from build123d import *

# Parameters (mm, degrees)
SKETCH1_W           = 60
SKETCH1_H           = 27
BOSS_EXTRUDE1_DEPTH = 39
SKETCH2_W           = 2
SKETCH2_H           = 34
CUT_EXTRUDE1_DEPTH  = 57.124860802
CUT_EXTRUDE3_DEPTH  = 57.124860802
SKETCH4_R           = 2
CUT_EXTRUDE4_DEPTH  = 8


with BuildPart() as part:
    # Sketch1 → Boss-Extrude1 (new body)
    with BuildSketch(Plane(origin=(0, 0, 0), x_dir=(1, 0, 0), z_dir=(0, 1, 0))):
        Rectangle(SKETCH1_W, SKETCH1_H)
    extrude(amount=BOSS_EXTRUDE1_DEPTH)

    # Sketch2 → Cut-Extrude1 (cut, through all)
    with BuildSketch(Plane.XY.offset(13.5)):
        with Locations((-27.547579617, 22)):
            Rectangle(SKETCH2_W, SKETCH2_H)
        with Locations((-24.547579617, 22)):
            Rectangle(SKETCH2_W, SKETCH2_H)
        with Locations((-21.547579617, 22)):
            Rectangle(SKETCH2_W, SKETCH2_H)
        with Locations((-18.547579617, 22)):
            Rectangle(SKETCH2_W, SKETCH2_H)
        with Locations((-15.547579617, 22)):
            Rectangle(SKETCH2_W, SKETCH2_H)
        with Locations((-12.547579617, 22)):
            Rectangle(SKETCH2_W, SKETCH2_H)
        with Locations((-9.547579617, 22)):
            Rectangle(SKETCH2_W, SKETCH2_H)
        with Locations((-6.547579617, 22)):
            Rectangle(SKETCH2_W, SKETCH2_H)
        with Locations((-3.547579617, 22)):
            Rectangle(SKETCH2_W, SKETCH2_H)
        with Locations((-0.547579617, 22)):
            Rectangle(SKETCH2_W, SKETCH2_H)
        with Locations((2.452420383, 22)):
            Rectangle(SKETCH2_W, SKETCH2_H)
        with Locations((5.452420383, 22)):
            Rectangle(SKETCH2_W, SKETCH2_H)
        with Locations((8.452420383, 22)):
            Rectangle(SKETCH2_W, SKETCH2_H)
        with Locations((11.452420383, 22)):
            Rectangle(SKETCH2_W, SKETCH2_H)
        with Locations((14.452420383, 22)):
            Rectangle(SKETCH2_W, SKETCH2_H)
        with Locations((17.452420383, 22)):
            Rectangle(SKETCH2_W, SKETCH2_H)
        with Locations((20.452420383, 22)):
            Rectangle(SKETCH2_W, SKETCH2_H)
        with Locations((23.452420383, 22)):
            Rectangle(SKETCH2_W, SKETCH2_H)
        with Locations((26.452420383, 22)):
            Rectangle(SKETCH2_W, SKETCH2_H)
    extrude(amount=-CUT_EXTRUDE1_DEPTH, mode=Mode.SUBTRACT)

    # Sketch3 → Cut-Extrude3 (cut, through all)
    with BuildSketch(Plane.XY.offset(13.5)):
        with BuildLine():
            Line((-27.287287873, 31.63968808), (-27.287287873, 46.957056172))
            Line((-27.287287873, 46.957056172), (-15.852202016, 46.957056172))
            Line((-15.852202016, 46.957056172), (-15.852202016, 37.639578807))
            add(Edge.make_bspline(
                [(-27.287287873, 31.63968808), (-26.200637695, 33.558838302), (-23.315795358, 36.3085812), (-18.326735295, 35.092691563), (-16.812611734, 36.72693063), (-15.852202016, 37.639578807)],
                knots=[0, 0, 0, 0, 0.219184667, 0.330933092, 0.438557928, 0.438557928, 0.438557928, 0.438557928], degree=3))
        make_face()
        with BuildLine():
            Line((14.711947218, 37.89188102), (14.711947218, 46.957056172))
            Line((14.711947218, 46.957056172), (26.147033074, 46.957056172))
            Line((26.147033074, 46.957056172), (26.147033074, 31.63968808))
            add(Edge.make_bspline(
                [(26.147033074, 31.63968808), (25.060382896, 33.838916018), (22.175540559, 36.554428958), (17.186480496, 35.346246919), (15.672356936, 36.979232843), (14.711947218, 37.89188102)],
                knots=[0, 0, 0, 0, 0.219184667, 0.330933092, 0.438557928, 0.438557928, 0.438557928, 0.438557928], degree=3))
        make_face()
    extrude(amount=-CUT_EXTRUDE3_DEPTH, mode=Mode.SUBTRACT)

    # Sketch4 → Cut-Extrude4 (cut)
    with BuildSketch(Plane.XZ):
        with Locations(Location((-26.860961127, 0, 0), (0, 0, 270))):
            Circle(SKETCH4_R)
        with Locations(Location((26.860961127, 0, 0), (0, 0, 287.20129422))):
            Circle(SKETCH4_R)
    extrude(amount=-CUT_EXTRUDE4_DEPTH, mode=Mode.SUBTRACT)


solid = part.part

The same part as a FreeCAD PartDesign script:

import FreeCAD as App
import Part
import Sketcher
Q = App.Units.Quantity

doc = App.newDocument("Part")
body = doc.addObject("PartDesign::Body", "Body")

sketch1 = body.newObject("Sketcher::SketchObject", "Sketch")
sketch1.AttachmentSupport = (doc.getObject("XZ_Plane"), [""])
sketch1.MapMode = "FlatFace"
sketch1.addGeometry([
    Part.LineSegment(App.Vector(-30, -14, 0), App.Vector(-30, 14, 0)),
    Part.LineSegment(App.Vector(-30, 14, 0), App.Vector(30, 14, 0)),
    Part.LineSegment(App.Vector(30, 14, 0), App.Vector(30, -14, 0)),
    Part.LineSegment(App.Vector(30, -14, 0), App.Vector(-30, -14, 0)),
], False)
sketch1.addConstraint([
    Sketcher.Constraint("Coincident", 0, 2, 1, 1),
    Sketcher.Constraint("Coincident", 1, 2, 2, 1),
    Sketcher.Constraint("Coincident", 2, 2, 3, 1),
    Sketcher.Constraint("Coincident", 3, 2, 0, 1),
    Sketcher.Constraint("Vertical", 0),
    Sketcher.Constraint("Horizontal", 1),
    Sketcher.Constraint("Vertical", 2),
    Sketcher.Constraint("Horizontal", 3),
    Sketcher.Constraint("Symmetric", 0, 2, 2, 2, -1, 1),
    Sketcher.Constraint("DistanceX", 1, 1, 1, 2, Q("60 mm")),
    Sketcher.Constraint("DistanceY", 0, 1, 0, 2, Q("27 mm")),
])
pad1 = body.newObject("PartDesign::Pad", "Pad")
pad1.Profile = sketch1
pad1.Length = 39
pad1.Reversed = True

sketch2 = body.newObject("Sketcher::SketchObject", "Sketch001")
sketch2.AttachmentSupport = (doc.getObject("XY_Plane"), [""])
sketch2.MapMode = "FlatFace"
sketch2.AttachmentOffset = App.Placement(App.Vector(0, 0, 13.5), App.Rotation())
sketch2.addGeometry([
    Part.LineSegment(App.Vector(-28.5, 39, 0), App.Vector(-28.5, 5, 0)),
    Part.LineSegment(App.Vector(-28.5, 5, 0), App.Vector(-26.5, 5, 0)),
    Part.LineSegment(App.Vector(-26.5, 5, 0), App.Vector(-26.5, 39, 0)),
    Part.LineSegment(App.Vector(-26.5, 39, 0), App.Vector(-28.5, 39, 0)),
    Part.LineSegment(App.Vector(-25.5, 39, 0), App.Vector(-25.5, 5, 0)),
    Part.LineSegment(App.Vector(-25.5, 5, 0), App.Vector(-23.5, 5, 0)),
    Part.LineSegment(App.Vector(-23.5, 5, 0), App.Vector(-23.5, 39, 0)),
    Part.LineSegment(App.Vector(-23.5, 39, 0), App.Vector(-25.5, 39, 0)),
    Part.LineSegment(App.Vector(-22.5, 39, 0), App.Vector(-22.5, 5, 0)),
    Part.LineSegment(App.Vector(-22.5, 5, 0), App.Vector(-20.5, 5, 0)),
    Part.LineSegment(App.Vector(-20.5, 5, 0), App.Vector(-20.5, 39, 0)),
    Part.LineSegment(App.Vector(-20.5, 39, 0), App.Vector(-22.5, 39, 0)),
    Part.LineSegment(App.Vector(-19.5, 39, 0), App.Vector(-19.5, 5, 0)),
    Part.LineSegment(App.Vector(-19.5, 5, 0), App.Vector(-17.5, 5, 0)),
    Part.LineSegment(App.Vector(-17.5, 5, 0), App.Vector(-17.5, 39, 0)),
    Part.LineSegment(App.Vector(-17.5, 39, 0), App.Vector(-19.5, 39, 0)),
    Part.LineSegment(App.Vector(-16.5, 39, 0), App.Vector(-16.5, 5, 0)),
    Part.LineSegment(App.Vector(-16.5, 5, 0), App.Vector(-14.5, 5, 0)),
    Part.LineSegment(App.Vector(-14.5, 5, 0), App.Vector(-14.5, 39, 0)),
    Part.LineSegment(App.Vector(-14.5, 39, 0), App.Vector(-16.5, 39, 0)),
    Part.LineSegment(App.Vector(-13.5, 39, 0), App.Vector(-13.5, 5, 0)),
    Part.LineSegment(App.Vector(-13.5, 5, 0), App.Vector(-11.5, 5, 0)),
    Part.LineSegment(App.Vector(-11.5, 5, 0), App.Vector(-11.5, 39, 0)),
    Part.LineSegment(App.Vector(-11.5, 39, 0), App.Vector(-13.5, 39, 0)),
    Part.LineSegment(App.Vector(-10.5, 39, 0), App.Vector(-10.5, 5, 0)),
    Part.LineSegment(App.Vector(-10.5, 5, 0), App.Vector(-8.5, 5, 0)),
    Part.LineSegment(App.Vector(-8.5, 5, 0), App.Vector(-8.5, 39, 0)),
    Part.LineSegment(App.Vector(-8.5, 39, 0), App.Vector(-10.5, 39, 0)),
    Part.LineSegment(App.Vector(-7.5, 39, 0), App.Vector(-7.5, 5, 0)),
    Part.LineSegment(App.Vector(-7.5, 5, 0), App.Vector(-5.5, 5, 0)),
    Part.LineSegment(App.Vector(-5.5, 5, 0), App.Vector(-5.5, 39, 0)),
    Part.LineSegment(App.Vector(-5.5, 39, 0), App.Vector(-7.5, 39, 0)),
    Part.LineSegment(App.Vector(-4.5, 39, 0), App.Vector(-4.5, 5, 0)),
    Part.LineSegment(App.Vector(-4.5, 5, 0), App.Vector(-2.5, 5, 0)),
    Part.LineSegment(App.Vector(-2.5, 5, 0), App.Vector(-2.5, 39, 0)),
    Part.LineSegment(App.Vector(-2.5, 39, 0), App.Vector(-4.5, 39, 0)),
    Part.LineSegment(App.Vector(-1.5, 39, 0), App.Vector(-1.5, 5, 0)),
    Part.LineSegment(App.Vector(-1.5, 5, 0), App.Vector(0.5, 5, 0)),
    Part.LineSegment(App.Vector(0.5, 5, 0), App.Vector(0.5, 39, 0)),
    Part.LineSegment(App.Vector(0.5, 39, 0), App.Vector(-1.5, 39, 0)),
    Part.LineSegment(App.Vector(1.5, 39, 0), App.Vector(1.5, 5, 0)),
    Part.LineSegment(App.Vector(1.5, 5, 0), App.Vector(3.5, 5, 0)),
    Part.LineSegment(App.Vector(3.5, 5, 0), App.Vector(3.5, 39, 0)),
    Part.LineSegment(App.Vector(3.5, 39, 0), App.Vector(1.5, 39, 0)),
    Part.LineSegment(App.Vector(4.5, 39, 0), App.Vector(4.5, 5, 0)),
    Part.LineSegment(App.Vector(4.5, 5, 0), App.Vector(6.5, 5, 0)),
    Part.LineSegment(App.Vector(6.5, 5, 0), App.Vector(6.5, 39, 0)),
    Part.LineSegment(App.Vector(6.5, 39, 0), App.Vector(4.5, 39, 0)),
    Part.LineSegment(App.Vector(7.5, 39, 0), App.Vector(7.5, 5, 0)),
    Part.LineSegment(App.Vector(7.5, 5, 0), App.Vector(9.5, 5, 0)),
    Part.LineSegment(App.Vector(9.5, 5, 0), App.Vector(9.5, 39, 0)),
    Part.LineSegment(App.Vector(9.5, 39, 0), App.Vector(7.5, 39, 0)),
    Part.LineSegment(App.Vector(10.5, 39, 0), App.Vector(10.5, 5, 0)),
    Part.LineSegment(App.Vector(10.5, 5, 0), App.Vector(12.5, 5, 0)),
    Part.LineSegment(App.Vector(12.5, 5, 0), App.Vector(12.5, 39, 0)),
    Part.LineSegment(App.Vector(12.5, 39, 0), App.Vector(10.5, 39, 0)),
    Part.LineSegment(App.Vector(13.5, 39, 0), App.Vector(13.5, 5, 0)),
    Part.LineSegment(App.Vector(13.5, 5, 0), App.Vector(15.5, 5, 0)),
    Part.LineSegment(App.Vector(15.5, 5, 0), App.Vector(15.5, 39, 0)),
    Part.LineSegment(App.Vector(15.5, 39, 0), App.Vector(13.5, 39, 0)),
    Part.LineSegment(App.Vector(16.5, 39, 0), App.Vector(16.5, 5, 0)),
    Part.LineSegment(App.Vector(16.5, 5, 0), App.Vector(18.5, 5, 0)),
    Part.LineSegment(App.Vector(18.5, 5, 0), App.Vector(18.5, 39, 0)),
    Part.LineSegment(App.Vector(18.5, 39, 0), App.Vector(16.5, 39, 0)),
    Part.LineSegment(App.Vector(19.5, 39, 0), App.Vector(19.5, 5, 0)),
    Part.LineSegment(App.Vector(19.5, 5, 0), App.Vector(21.5, 5, 0)),
    Part.LineSegment(App.Vector(21.5, 5, 0), App.Vector(21.5, 39, 0)),
    Part.LineSegment(App.Vector(21.5, 39, 0), App.Vector(19.5, 39, 0)),
    Part.LineSegment(App.Vector(22.5, 39, 0), App.Vector(22.5, 5, 0)),
    Part.LineSegment(App.Vector(22.5, 5, 0), App.Vector(24.5, 5, 0)),
    Part.LineSegment(App.Vector(24.5, 5, 0), App.Vector(24.5, 39, 0)),
    Part.LineSegment(App.Vector(24.5, 39, 0), App.Vector(22.5, 39, 0)),
    Part.LineSegment(App.Vector(25.5, 39, 0), App.Vector(25.5, 5, 0)),
    Part.LineSegment(App.Vector(25.5, 5, 0), App.Vector(27.5, 5, 0)),
    Part.LineSegment(App.Vector(27.5, 5, 0), App.Vector(27.5, 39, 0)),
    Part.LineSegment(App.Vector(27.5, 39, 0), App.Vector(25.5, 39, 0)),
], False)
sketch2.addConstraint([
    Sketcher.Constraint("Coincident", 0, 2, 1, 1),
    Sketcher.Constraint("Coincident", 1, 2, 2, 1),
    Sketcher.Constraint("Coincident", 2, 2, 3, 1),
    Sketcher.Constraint("Coincident", 3, 2, 0, 1),
    Sketcher.Constraint("Coincident", 4, 2, 5, 1),
    Sketcher.Constraint("Coincident", 5, 2, 6, 1),
    Sketcher.Constraint("Coincident", 6, 2, 7, 1),
    Sketcher.Constraint("Coincident", 7, 2, 4, 1),
    Sketcher.Constraint("Coincident", 8, 2, 9, 1),
    Sketcher.Constraint("Coincident", 9, 2, 10, 1),
    Sketcher.Constraint("Coincident", 10, 2, 11, 1),
    Sketcher.Constraint("Coincident", 11, 2, 8, 1),
    Sketcher.Constraint("Coincident", 12, 2, 13, 1),
    Sketcher.Constraint("Coincident", 13, 2, 14, 1),
    Sketcher.Constraint("Coincident", 14, 2, 15, 1),
    Sketcher.Constraint("Coincident", 15, 2, 12, 1),
    Sketcher.Constraint("Coincident", 16, 2, 17, 1),
    Sketcher.Constraint("Coincident", 17, 2, 18, 1),
    Sketcher.Constraint("Coincident", 18, 2, 19, 1),
    Sketcher.Constraint("Coincident", 19, 2, 16, 1),
    Sketcher.Constraint("Coincident", 20, 2, 21, 1),
    Sketcher.Constraint("Coincident", 21, 2, 22, 1),
    Sketcher.Constraint("Coincident", 22, 2, 23, 1),
    Sketcher.Constraint("Coincident", 23, 2, 20, 1),
    Sketcher.Constraint("Coincident", 24, 2, 25, 1),
    Sketcher.Constraint("Coincident", 25, 2, 26, 1),
    Sketcher.Constraint("Coincident", 26, 2, 27, 1),
    Sketcher.Constraint("Coincident", 27, 2, 24, 1),
    Sketcher.Constraint("Coincident", 28, 2, 29, 1),
    Sketcher.Constraint("Coincident", 29, 2, 30, 1),
    Sketcher.Constraint("Coincident", 30, 2, 31, 1),
    Sketcher.Constraint("Coincident", 31, 2, 28, 1),
    Sketcher.Constraint("Coincident", 32, 2, 33, 1),
    Sketcher.Constraint("Coincident", 33, 2, 34, 1),
    Sketcher.Constraint("Coincident", 34, 2, 35, 1),
    Sketcher.Constraint("Coincident", 35, 2, 32, 1),
    Sketcher.Constraint("Coincident", 36, 2, 37, 1),
    Sketcher.Constraint("Coincident", 37, 2, 38, 1),
    Sketcher.Constraint("Coincident", 38, 2, 39, 1),
    Sketcher.Constraint("Coincident", 39, 2, 36, 1),
    Sketcher.Constraint("Coincident", 40, 2, 41, 1),
    Sketcher.Constraint("Coincident", 41, 2, 42, 1),
    Sketcher.Constraint("Coincident", 42, 2, 43, 1),
    Sketcher.Constraint("Coincident", 43, 2, 40, 1),
    Sketcher.Constraint("Coincident", 44, 2, 45, 1),
    Sketcher.Constraint("Coincident", 45, 2, 46, 1),
    Sketcher.Constraint("Coincident", 46, 2, 47, 1),
    Sketcher.Constraint("Coincident", 47, 2, 44, 1),
    Sketcher.Constraint("Coincident", 48, 2, 49, 1),
    Sketcher.Constraint("Coincident", 49, 2, 50, 1),
    Sketcher.Constraint("Coincident", 50, 2, 51, 1),
    Sketcher.Constraint("Coincident", 51, 2, 48, 1),
    Sketcher.Constraint("Coincident", 52, 2, 53, 1),
    Sketcher.Constraint("Coincident", 53, 2, 54, 1),
    Sketcher.Constraint("Coincident", 54, 2, 55, 1),
    Sketcher.Constraint("Coincident", 55, 2, 52, 1),
    Sketcher.Constraint("Coincident", 56, 2, 57, 1),
    Sketcher.Constraint("Coincident", 57, 2, 58, 1),
    Sketcher.Constraint("Coincident", 58, 2, 59, 1),
    Sketcher.Constraint("Coincident", 59, 2, 56, 1),
    Sketcher.Constraint("Coincident", 60, 2, 61, 1),
    Sketcher.Constraint("Coincident", 61, 2, 62, 1),
    Sketcher.Constraint("Coincident", 62, 2, 63, 1),
    Sketcher.Constraint("Coincident", 63, 2, 60, 1),
    Sketcher.Constraint("Coincident", 64, 2, 65, 1),
    Sketcher.Constraint("Coincident", 65, 2, 66, 1),
    Sketcher.Constraint("Coincident", 66, 2, 67, 1),
    Sketcher.Constraint("Coincident", 67, 2, 64, 1),
    Sketcher.Constraint("Coincident", 68, 2, 69, 1),
    Sketcher.Constraint("Coincident", 69, 2, 70, 1),
    Sketcher.Constraint("Coincident", 70, 2, 71, 1),
    Sketcher.Constraint("Coincident", 71, 2, 68, 1),
    Sketcher.Constraint("Coincident", 72, 2, 73, 1),
    Sketcher.Constraint("Coincident", 73, 2, 74, 1),
    Sketcher.Constraint("Coincident", 74, 2, 75, 1),
    Sketcher.Constraint("Coincident", 75, 2, 72, 1),
    Sketcher.Constraint("Vertical", 0),
    Sketcher.Constraint("Horizontal", 1),
    Sketcher.Constraint("Vertical", 2),
    Sketcher.Constraint("Horizontal", 3),
    Sketcher.Constraint("Vertical", 4),
    Sketcher.Constraint("Horizontal", 5),
    Sketcher.Constraint("Vertical", 6),
    Sketcher.Constraint("Horizontal", 7),
    Sketcher.Constraint("Vertical", 8),
    Sketcher.Constraint("Horizontal", 9),
    Sketcher.Constraint("Vertical", 10),
    Sketcher.Constraint("Horizontal", 11),
    Sketcher.Constraint("Vertical", 12),
    Sketcher.Constraint("Horizontal", 13),
    Sketcher.Constraint("Vertical", 14),
    Sketcher.Constraint("Horizontal", 15),
    Sketcher.Constraint("Vertical", 16),
    Sketcher.Constraint("Horizontal", 17),
    Sketcher.Constraint("Vertical", 18),
    Sketcher.Constraint("Horizontal", 19),
    Sketcher.Constraint("Vertical", 20),
    Sketcher.Constraint("Horizontal", 21),
    Sketcher.Constraint("Vertical", 22),
    Sketcher.Constraint("Horizontal", 23),
    Sketcher.Constraint("Vertical", 24),
    Sketcher.Constraint("Horizontal", 25),
    Sketcher.Constraint("Vertical", 26),
    Sketcher.Constraint("Horizontal", 27),
    Sketcher.Constraint("Vertical", 28),
    Sketcher.Constraint("Horizontal", 29),
    Sketcher.Constraint("Vertical", 30),
    Sketcher.Constraint("Horizontal", 31),
    Sketcher.Constraint("Vertical", 32),
    Sketcher.Constraint("Horizontal", 33),
    Sketcher.Constraint("Vertical", 34),
    Sketcher.Constraint("Horizontal", 35),
    Sketcher.Constraint("Vertical", 36),
    Sketcher.Constraint("Horizontal", 37),
    Sketcher.Constraint("Vertical", 38),
    Sketcher.Constraint("Horizontal", 39),
    Sketcher.Constraint("Vertical", 40),
    Sketcher.Constraint("Horizontal", 41),
    Sketcher.Constraint("Vertical", 42),
    Sketcher.Constraint("Horizontal", 43),
    Sketcher.Constraint("Vertical", 44),
    Sketcher.Constraint("Horizontal", 45),
    Sketcher.Constraint("Vertical", 46),
    Sketcher.Constraint("Horizontal", 47),
    Sketcher.Constraint("Vertical", 48),
    Sketcher.Constraint("Horizontal", 49),
    Sketcher.Constraint("Vertical", 50),
    Sketcher.Constraint("Horizontal", 51),
    Sketcher.Constraint("Vertical", 52),
    Sketcher.Constraint("Horizontal", 53),
    Sketcher.Constraint("Vertical", 54),
    Sketcher.Constraint("Horizontal", 55),
    Sketcher.Constraint("Vertical", 56),
    Sketcher.Constraint("Horizontal", 57),
    Sketcher.Constraint("Vertical", 58),
    Sketcher.Constraint("Horizontal", 59),
    Sketcher.Constraint("Vertical", 60),
    Sketcher.Constraint("Horizontal", 61),
    Sketcher.Constraint("Vertical", 62),
    Sketcher.Constraint("Horizontal", 63),
    Sketcher.Constraint("Vertical", 64),
    Sketcher.Constraint("Horizontal", 65),
    Sketcher.Constraint("Vertical", 66),
    Sketcher.Constraint("Horizontal", 67),
    Sketcher.Constraint("Vertical", 68),
    Sketcher.Constraint("Horizontal", 69),
    Sketcher.Constraint("Vertical", 70),
    Sketcher.Constraint("Horizontal", 71),
    Sketcher.Constraint("Vertical", 72),
    Sketcher.Constraint("Horizontal", 73),
    Sketcher.Constraint("Vertical", 74),
    Sketcher.Constraint("Horizontal", 75),
    Sketcher.Constraint("Horizontal", 1, 2, 4, 2),
    Sketcher.Constraint("Horizontal", 3, 2, 6, 2),
    Sketcher.Constraint("Horizontal", 5, 2, 8, 2),
    Sketcher.Constraint("Horizontal", 7, 2, 10, 2),
    Sketcher.Constraint("Horizontal", 9, 2, 12, 2),
    Sketcher.Constraint("Horizontal", 11, 2, 14, 2),
    Sketcher.Constraint("Horizontal", 13, 2, 16, 2),
    Sketcher.Constraint("Horizontal", 15, 2, 18, 2),
    Sketcher.Constraint("Horizontal", 17, 2, 20, 2),
    Sketcher.Constraint("Horizontal", 19, 2, 22, 2),
    Sketcher.Constraint("Horizontal", 21, 2, 24, 2),
    Sketcher.Constraint("Horizontal", 23, 2, 26, 2),
    Sketcher.Constraint("Horizontal", 25, 2, 28, 2),
    Sketcher.Constraint("Horizontal", 27, 2, 30, 2),
    Sketcher.Constraint("Horizontal", 29, 2, 32, 2),
    Sketcher.Constraint("Horizontal", 31, 2, 34, 2),
    Sketcher.Constraint("Horizontal", 33, 2, 36, 2),
    Sketcher.Constraint("Horizontal", 35, 2, 38, 2),
    Sketcher.Constraint("Horizontal", 37, 2, 40, 2),
    Sketcher.Constraint("Horizontal", 39, 2, 42, 2),
    Sketcher.Constraint("Horizontal", 41, 2, 44, 2),
    Sketcher.Constraint("Horizontal", 43, 2, 46, 2),
    Sketcher.Constraint("Horizontal", 45, 2, 48, 2),
    Sketcher.Constraint("Horizontal", 47, 2, 50, 2),
    Sketcher.Constraint("Horizontal", 49, 2, 52, 2),
    Sketcher.Constraint("Horizontal", 51, 2, 54, 2),
    Sketcher.Constraint("Horizontal", 53, 2, 56, 2),
    Sketcher.Constraint("Horizontal", 55, 2, 58, 2),
    Sketcher.Constraint("Horizontal", 57, 2, 60, 2),
    Sketcher.Constraint("Horizontal", 59, 2, 62, 2),
    Sketcher.Constraint("Horizontal", 61, 2, 64, 2),
    Sketcher.Constraint("Horizontal", 63, 2, 66, 2),
    Sketcher.Constraint("Horizontal", 65, 2, 68, 2),
    Sketcher.Constraint("Horizontal", 67, 2, 70, 2),
    Sketcher.Constraint("Horizontal", 69, 2, 72, 2),
    Sketcher.Constraint("Horizontal", 71, 2, 74, 2),
    Sketcher.Constraint("Equal", 3, 5),
    Sketcher.Constraint("Equal", 7, 9),
    Sketcher.Constraint("Equal", 11, 13),
    Sketcher.Constraint("Equal", 15, 17),
    Sketcher.Constraint("Equal", 19, 21),
    Sketcher.Constraint("Equal", 23, 25),
    Sketcher.Constraint("Equal", 27, 29),
    Sketcher.Constraint("Equal", 31, 33),
    Sketcher.Constraint("Equal", 35, 37),
    Sketcher.Constraint("Equal", 39, 41),
    Sketcher.Constraint("Equal", 43, 45),
    Sketcher.Constraint("Equal", 47, 49),
    Sketcher.Constraint("Equal", 51, 53),
    Sketcher.Constraint("Equal", 55, 57),
    Sketcher.Constraint("Equal", 59, 61),
    Sketcher.Constraint("Equal", 63, 65),
    Sketcher.Constraint("Equal", 67, 69),
    Sketcher.Constraint("Equal", 71, 73),
    Sketcher.Constraint("DistanceX", 1, 1, 1, 2, Q("2 mm")),
    Sketcher.Constraint("DistanceY", 0, 2, 0, 1, Q("34 mm")),
    Sketcher.Constraint("DistanceY", -1, 1, 0, 2, Q("5 mm")),
    Sketcher.Constraint("DistanceX", 0, 2, -1, 1, Q("28.54758 mm")),
    Sketcher.Constraint("DistanceX", 4, 2, -1, 1, Q("25.54758 mm")),
    Sketcher.Constraint("DistanceX", 8, 2, -1, 1, Q("22.54758 mm")),
    Sketcher.Constraint("DistanceX", 12, 2, -1, 1, Q("19.54758 mm")),
    Sketcher.Constraint("DistanceX", 16, 2, -1, 1, Q("16.54758 mm")),
    Sketcher.Constraint("DistanceX", 20, 2, -1, 1, Q("13.54758 mm")),
    Sketcher.Constraint("DistanceX", 24, 2, -1, 1, Q("10.54758 mm")),
    Sketcher.Constraint("DistanceX", 28, 2, -1, 1, Q("7.54758 mm")),
    Sketcher.Constraint("DistanceX", 32, 2, -1, 1, Q("4.54758 mm")),
    Sketcher.Constraint("DistanceX", 36, 2, -1, 1, Q("1.54758 mm")),
    Sketcher.Constraint("DistanceX", -1, 1, 40, 2, Q("1.45242 mm")),
    Sketcher.Constraint("DistanceX", -1, 1, 44, 2, Q("4.45242 mm")),
    Sketcher.Constraint("DistanceX", -1, 1, 48, 2, Q("7.45242 mm")),
    Sketcher.Constraint("DistanceX", -1, 1, 52, 2, Q("10.45242 mm")),
    Sketcher.Constraint("DistanceX", -1, 1, 56, 2, Q("13.45242 mm")),
    Sketcher.Constraint("DistanceX", -1, 1, 60, 2, Q("16.45242 mm")),
    Sketcher.Constraint("DistanceX", -1, 1, 64, 2, Q("19.45242 mm")),
    Sketcher.Constraint("DistanceX", -1, 1, 68, 2, Q("22.45242 mm")),
    Sketcher.Constraint("DistanceX", -1, 1, 72, 2, Q("25.45242 mm")),
])
pocket1 = body.newObject("PartDesign::Pocket", "Pocket")
pocket1.Profile = sketch2
pocket1.Type = "ThroughAll"

sketch3 = body.newObject("Sketcher::SketchObject", "Sketch002")
sketch3.AttachmentSupport = (doc.getObject("XY_Plane"), [""])
sketch3.MapMode = "FlatFace"
sketch3.AttachmentOffset = App.Placement(App.Vector(0, 0, 13.5), App.Rotation())
sketch3.addGeometry([
    Part.LineSegment(App.Vector(-27.287288, 46.957056, 0), App.Vector(-27.287288, 31.639688, 0)),
    Part.BSplineCurve([App.Vector(-27.287288, 31.639688, 0), App.Vector(-26.200638, 33.558838, 0), App.Vector(-23.315795, 36.308581, 0), App.Vector(-18.326735, 35.092692, 0), App.Vector(-16.812612, 36.726931, 0), App.Vector(-15.852202, 37.639579, 0)], [4, 1, 1, 4], [0, 0.219184667, 0.330933092, 0.438557928], False, 3, [1, 1, 1, 1, 1, 1], False),
    Part.LineSegment(App.Vector(-15.852202, 37.639579, 0), App.Vector(-15.852202, 46.957056, 0)),
    Part.LineSegment(App.Vector(-15.852202, 46.957056, 0), App.Vector(-27.287288, 46.957056, 0)),
    Part.LineSegment(App.Vector(14.711947, 46.957056, 0), App.Vector(14.711947, 37.891881, 0)),
    Part.BSplineCurve([App.Vector(26.147033, 31.639688, 0), App.Vector(25.060383, 33.838916, 0), App.Vector(22.175541, 36.554429, 0), App.Vector(17.18648, 35.346247, 0), App.Vector(15.672357, 36.979233, 0), App.Vector(14.711947, 37.891881, 0)], [4, 1, 1, 4], [0, 0.219184667, 0.330933092, 0.438557928], False, 3, [1, 1, 1, 1, 1, 1], False),
    Part.LineSegment(App.Vector(26.147033, 31.639688, 0), App.Vector(26.147033, 46.957056, 0)),
    Part.LineSegment(App.Vector(26.147033, 46.957056, 0), App.Vector(14.711947, 46.957056, 0)),
], False)
sketch3.addConstraint([
    Sketcher.Constraint("Block", 1),
    Sketcher.Constraint("Block", 5),
    Sketcher.Constraint("Coincident", 0, 2, 1, 1),
    Sketcher.Constraint("Coincident", 1, 2, 2, 1),
    Sketcher.Constraint("Coincident", 2, 2, 3, 1),
    Sketcher.Constraint("Coincident", 3, 2, 0, 1),
    Sketcher.Constraint("Coincident", 4, 2, 5, 2),
    Sketcher.Constraint("Coincident", 5, 1, 6, 1),
    Sketcher.Constraint("Coincident", 6, 2, 7, 1),
    Sketcher.Constraint("Coincident", 7, 2, 4, 1),
    Sketcher.Constraint("Vertical", 0),
    Sketcher.Constraint("Vertical", 2),
    Sketcher.Constraint("Horizontal", 3),
    Sketcher.Constraint("Vertical", 4),
    Sketcher.Constraint("Vertical", 6),
    Sketcher.Constraint("Horizontal", 7),
    Sketcher.Constraint("Horizontal", 3, 2, 6, 2),
    Sketcher.Constraint("DistanceY", 0, 2, 0, 1, Q("15.317368 mm")),
])
pocket2 = body.newObject("PartDesign::Pocket", "Pocket001")
pocket2.Profile = sketch3
pocket2.Type = "ThroughAll"

sketch4 = body.newObject("Sketcher::SketchObject", "Sketch003")
sketch4.AttachmentSupport = (doc.getObject("XZ_Plane"), [""])
sketch4.MapMode = "FlatFace"
sketch4.addGeometry([
    Part.Circle(App.Vector(-26.9, 0, 0), App.Vector(0, 0, 1), 2),
    Part.Circle(App.Vector(26.9, 0, 0), App.Vector(0, 0, 1), 2),
], False)
sketch4.addConstraint([
    Sketcher.Constraint("Equal", 0, 1),
    Sketcher.Constraint("Symmetric", 0, 3, 1, 3, -1, 1),
    Sketcher.Constraint("PointOnObject", 0, 3, -1),
    Sketcher.Constraint("Diameter", 0, Q("4 mm")),
    Sketcher.Constraint("DistanceX", 0, 3, -1, 1, Q("26.860961 mm")),
])
pocket3 = body.newObject("PartDesign::Pocket", "Pocket002")
pocket3.Profile = sketch4
pocket3.Length = 8

doc.recompute()
